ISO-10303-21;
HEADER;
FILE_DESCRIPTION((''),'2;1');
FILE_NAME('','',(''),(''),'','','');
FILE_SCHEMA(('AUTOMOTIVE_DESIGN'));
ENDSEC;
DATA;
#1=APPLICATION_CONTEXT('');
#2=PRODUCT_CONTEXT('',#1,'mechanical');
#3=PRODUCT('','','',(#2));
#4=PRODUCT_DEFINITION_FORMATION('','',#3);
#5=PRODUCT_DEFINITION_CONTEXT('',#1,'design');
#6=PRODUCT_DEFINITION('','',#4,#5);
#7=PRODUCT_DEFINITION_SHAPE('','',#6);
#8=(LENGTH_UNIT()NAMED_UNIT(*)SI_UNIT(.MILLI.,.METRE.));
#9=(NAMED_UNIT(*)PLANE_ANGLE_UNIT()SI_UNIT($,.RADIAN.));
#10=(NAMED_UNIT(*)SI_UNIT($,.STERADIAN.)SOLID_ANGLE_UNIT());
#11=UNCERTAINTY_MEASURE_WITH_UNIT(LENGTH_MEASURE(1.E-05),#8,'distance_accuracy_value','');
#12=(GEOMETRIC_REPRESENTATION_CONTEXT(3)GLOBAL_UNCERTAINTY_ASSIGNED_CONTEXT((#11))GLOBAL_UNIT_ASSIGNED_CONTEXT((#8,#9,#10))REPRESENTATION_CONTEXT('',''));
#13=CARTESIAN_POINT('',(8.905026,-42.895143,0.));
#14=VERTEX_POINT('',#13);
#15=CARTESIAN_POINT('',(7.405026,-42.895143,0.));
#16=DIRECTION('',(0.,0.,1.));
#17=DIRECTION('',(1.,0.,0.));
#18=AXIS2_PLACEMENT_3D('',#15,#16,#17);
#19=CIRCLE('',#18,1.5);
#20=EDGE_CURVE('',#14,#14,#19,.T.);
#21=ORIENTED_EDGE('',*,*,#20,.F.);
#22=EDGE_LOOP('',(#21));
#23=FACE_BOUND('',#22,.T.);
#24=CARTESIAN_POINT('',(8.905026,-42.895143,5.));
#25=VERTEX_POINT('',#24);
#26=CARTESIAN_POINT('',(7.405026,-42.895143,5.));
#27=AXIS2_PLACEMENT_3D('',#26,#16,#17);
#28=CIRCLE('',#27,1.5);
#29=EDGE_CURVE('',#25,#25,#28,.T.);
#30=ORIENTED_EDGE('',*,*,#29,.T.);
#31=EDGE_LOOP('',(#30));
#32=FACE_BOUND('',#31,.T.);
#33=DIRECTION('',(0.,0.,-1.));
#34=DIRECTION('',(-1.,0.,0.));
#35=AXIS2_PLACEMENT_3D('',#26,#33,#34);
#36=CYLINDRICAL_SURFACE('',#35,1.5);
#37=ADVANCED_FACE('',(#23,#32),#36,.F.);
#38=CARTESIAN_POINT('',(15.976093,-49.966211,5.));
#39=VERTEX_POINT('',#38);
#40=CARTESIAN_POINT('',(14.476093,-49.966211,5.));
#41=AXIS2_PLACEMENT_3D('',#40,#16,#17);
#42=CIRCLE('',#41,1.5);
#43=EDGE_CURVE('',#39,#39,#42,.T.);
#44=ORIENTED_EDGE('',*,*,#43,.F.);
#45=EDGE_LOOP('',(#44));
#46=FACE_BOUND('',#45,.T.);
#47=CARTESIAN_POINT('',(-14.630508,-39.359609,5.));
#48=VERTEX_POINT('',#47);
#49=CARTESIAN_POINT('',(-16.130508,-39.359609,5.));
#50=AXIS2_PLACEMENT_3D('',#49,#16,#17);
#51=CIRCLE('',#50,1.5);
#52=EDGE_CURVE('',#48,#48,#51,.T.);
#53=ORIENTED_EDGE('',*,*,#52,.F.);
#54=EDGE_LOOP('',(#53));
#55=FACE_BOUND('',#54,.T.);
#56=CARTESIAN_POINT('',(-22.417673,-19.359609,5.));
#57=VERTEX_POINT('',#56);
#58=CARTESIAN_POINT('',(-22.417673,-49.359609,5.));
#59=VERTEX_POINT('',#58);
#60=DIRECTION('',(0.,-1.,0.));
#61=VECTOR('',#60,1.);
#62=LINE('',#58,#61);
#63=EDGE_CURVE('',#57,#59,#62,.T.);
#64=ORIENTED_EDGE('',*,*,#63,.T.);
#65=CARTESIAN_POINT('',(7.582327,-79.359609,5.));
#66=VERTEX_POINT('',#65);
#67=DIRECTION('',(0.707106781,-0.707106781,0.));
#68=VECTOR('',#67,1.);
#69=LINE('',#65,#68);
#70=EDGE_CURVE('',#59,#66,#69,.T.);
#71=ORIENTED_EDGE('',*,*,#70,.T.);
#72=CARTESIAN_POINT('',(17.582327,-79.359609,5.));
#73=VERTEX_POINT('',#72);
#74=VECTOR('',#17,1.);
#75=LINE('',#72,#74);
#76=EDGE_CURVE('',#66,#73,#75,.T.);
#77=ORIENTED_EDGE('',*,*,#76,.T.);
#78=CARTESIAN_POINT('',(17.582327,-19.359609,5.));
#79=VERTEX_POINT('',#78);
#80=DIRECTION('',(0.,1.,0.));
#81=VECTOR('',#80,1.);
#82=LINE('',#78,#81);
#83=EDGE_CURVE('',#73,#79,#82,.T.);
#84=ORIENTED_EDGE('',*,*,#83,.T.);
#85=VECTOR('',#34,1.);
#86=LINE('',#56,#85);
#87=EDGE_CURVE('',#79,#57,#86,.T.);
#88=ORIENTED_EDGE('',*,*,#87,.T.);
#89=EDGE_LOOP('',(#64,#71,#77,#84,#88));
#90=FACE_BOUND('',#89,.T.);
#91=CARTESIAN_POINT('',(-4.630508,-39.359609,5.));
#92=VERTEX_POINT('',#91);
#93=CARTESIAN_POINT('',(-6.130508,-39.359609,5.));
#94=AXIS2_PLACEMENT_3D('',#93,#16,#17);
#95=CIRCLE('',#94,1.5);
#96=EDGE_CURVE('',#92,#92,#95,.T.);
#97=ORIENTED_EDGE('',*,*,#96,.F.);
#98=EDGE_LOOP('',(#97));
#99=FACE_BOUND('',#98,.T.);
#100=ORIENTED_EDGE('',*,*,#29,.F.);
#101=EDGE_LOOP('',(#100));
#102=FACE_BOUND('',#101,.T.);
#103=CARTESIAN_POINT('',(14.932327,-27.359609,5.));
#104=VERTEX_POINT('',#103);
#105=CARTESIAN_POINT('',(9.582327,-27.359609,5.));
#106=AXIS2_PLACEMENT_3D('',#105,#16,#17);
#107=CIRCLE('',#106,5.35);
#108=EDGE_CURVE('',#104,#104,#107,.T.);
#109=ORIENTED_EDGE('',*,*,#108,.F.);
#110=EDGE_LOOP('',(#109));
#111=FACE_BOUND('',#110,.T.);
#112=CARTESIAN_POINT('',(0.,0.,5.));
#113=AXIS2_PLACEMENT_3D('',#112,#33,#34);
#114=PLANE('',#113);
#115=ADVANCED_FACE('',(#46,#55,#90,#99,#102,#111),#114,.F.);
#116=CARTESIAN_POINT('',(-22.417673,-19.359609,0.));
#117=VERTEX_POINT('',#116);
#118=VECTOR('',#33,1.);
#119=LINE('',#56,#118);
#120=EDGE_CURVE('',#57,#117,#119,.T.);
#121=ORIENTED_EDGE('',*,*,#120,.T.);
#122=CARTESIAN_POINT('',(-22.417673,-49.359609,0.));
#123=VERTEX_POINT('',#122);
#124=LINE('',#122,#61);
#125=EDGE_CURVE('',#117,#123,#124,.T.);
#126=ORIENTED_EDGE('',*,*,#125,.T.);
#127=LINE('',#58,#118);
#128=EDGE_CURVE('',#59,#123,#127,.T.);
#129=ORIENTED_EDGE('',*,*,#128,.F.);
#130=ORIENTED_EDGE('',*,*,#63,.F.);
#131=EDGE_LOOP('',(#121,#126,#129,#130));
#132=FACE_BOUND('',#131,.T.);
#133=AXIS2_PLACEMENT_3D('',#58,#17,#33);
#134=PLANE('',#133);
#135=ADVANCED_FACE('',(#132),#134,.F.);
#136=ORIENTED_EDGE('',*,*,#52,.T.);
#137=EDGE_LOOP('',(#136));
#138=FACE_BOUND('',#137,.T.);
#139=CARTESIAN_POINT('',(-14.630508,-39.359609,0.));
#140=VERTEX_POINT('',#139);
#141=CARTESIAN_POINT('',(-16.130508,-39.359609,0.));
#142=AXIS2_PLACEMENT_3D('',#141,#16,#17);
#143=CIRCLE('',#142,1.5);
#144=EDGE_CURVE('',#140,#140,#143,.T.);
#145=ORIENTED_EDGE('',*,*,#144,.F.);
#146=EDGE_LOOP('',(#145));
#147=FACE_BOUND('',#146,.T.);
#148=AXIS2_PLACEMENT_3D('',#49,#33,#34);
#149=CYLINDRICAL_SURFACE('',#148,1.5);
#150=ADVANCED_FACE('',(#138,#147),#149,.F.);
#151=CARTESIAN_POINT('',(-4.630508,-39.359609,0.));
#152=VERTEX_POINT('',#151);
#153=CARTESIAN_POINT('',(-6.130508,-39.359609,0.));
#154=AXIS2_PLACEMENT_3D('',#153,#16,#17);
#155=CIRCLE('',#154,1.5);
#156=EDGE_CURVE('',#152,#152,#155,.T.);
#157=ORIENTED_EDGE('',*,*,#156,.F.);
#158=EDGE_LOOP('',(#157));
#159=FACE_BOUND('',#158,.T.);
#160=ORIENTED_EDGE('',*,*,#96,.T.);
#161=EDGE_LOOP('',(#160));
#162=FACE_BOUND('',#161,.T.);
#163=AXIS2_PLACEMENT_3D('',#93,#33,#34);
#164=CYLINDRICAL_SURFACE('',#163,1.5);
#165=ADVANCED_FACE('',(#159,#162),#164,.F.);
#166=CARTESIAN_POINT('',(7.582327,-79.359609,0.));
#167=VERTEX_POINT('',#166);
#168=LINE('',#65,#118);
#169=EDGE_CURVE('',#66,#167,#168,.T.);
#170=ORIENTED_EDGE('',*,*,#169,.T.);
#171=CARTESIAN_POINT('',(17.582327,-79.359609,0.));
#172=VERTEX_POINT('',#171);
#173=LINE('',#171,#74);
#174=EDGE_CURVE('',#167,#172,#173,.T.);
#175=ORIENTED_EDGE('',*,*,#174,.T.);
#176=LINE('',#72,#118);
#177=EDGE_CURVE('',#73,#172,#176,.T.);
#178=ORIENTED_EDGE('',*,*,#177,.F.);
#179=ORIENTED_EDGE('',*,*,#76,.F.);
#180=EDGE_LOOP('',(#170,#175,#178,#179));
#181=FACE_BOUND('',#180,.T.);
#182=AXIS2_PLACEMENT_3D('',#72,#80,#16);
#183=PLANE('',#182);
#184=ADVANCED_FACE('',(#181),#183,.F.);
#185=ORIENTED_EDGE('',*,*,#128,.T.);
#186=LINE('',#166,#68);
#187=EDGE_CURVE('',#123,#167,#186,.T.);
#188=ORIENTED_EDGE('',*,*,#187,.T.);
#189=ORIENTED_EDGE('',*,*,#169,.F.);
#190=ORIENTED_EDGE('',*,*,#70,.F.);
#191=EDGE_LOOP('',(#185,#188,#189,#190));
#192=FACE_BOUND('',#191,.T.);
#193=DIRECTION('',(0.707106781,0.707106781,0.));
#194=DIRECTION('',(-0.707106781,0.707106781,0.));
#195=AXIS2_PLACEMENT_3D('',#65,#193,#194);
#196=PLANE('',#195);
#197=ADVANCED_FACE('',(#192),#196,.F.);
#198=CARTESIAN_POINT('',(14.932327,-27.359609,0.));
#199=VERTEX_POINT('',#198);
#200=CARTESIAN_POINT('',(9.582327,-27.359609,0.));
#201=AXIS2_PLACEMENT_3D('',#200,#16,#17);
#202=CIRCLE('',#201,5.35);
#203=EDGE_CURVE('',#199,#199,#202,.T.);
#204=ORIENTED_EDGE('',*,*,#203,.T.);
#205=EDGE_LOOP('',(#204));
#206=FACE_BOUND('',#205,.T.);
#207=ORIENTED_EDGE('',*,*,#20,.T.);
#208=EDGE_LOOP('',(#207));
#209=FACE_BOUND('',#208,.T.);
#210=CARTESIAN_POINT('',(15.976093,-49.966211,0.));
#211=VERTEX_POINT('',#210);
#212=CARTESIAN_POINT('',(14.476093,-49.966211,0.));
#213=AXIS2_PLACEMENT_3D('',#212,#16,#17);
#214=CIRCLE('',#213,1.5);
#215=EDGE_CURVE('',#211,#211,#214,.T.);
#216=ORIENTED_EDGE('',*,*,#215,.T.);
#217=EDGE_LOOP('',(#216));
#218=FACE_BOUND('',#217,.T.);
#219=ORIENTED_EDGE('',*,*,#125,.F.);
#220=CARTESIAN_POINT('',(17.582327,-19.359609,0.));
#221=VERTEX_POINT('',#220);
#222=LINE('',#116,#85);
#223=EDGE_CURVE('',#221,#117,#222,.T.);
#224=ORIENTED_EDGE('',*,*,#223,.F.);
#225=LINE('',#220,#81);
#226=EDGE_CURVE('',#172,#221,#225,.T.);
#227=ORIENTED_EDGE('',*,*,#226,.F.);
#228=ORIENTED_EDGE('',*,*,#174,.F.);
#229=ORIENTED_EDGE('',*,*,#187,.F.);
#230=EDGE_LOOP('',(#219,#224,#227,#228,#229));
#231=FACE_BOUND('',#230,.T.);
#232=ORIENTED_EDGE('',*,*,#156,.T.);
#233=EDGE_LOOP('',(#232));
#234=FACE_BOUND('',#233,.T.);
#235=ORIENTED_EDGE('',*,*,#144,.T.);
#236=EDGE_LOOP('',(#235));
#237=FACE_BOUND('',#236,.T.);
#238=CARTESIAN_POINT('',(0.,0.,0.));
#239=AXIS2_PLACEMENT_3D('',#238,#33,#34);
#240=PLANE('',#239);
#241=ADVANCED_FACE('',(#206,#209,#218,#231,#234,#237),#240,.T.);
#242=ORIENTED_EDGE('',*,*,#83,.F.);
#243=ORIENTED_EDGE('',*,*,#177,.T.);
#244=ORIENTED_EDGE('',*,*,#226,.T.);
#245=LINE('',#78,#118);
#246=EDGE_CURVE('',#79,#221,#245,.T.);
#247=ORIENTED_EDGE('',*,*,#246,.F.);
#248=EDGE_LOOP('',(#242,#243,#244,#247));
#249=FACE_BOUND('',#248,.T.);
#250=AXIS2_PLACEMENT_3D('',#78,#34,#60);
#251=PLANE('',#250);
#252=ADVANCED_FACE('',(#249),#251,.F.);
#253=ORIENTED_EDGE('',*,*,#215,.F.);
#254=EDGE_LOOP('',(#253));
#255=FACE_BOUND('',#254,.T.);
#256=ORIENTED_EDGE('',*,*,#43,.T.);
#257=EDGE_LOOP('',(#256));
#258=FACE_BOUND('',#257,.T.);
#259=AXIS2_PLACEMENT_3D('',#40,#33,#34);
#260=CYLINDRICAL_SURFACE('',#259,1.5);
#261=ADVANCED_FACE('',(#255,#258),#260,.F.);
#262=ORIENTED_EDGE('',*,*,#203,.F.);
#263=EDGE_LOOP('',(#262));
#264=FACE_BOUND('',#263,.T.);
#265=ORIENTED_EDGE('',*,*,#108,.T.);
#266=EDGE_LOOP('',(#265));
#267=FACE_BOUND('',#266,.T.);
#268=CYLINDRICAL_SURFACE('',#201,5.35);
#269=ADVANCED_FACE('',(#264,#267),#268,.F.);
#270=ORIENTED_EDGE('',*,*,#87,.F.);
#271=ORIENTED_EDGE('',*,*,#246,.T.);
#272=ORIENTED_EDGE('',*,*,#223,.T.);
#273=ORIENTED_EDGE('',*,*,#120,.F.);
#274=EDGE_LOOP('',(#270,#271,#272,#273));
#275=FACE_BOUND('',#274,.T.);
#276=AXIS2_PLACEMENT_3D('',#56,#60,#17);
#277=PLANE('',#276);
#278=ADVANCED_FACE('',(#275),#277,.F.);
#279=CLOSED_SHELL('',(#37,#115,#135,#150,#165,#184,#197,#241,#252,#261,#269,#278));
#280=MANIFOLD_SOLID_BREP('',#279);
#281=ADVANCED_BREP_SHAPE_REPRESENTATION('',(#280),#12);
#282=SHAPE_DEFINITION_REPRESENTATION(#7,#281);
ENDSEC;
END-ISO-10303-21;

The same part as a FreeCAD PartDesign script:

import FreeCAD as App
import Part
import Sketcher
from FreeCAD import Vector

doc = App.newDocument("Part")
body = doc.addObject("PartDesign::Body", "Body")

sketch1 = doc.addObject("Sketcher::SketchObject", "Sketch")
body.addObject(sketch1)
sketch1.AttachmentSupport = (doc.XY_Plane, [""])
sketch1.MapMode = "FlatFace"
sketch1.addGeometry([
    Part.LineSegment(Vector(-22.417673, -19.359609, 0), Vector(-22.417673, -49.359609, 0)),
    Part.LineSegment(Vector(-22.417673, -49.359609, 0), Vector(7.582327, -79.359609, 0)),
    Part.LineSegment(Vector(7.582327, -79.359609, 0), Vector(17.582327, -79.359609, 0)),
    Part.LineSegment(Vector(17.582327, -79.359609, 0), Vector(17.582327, -19.359609, 0)),
    Part.LineSegment(Vector(17.582327, -19.359609, 0), Vector(-22.417673, -19.359609, 0)),
    Part.Circle(Vector(14.476093, -49.966211, 0), Vector(0, 0, 1), 1.5),
    Part.Circle(Vector(7.405026, -42.895143, 0), Vector(0, 0, 1), 1.5),
    Part.Circle(Vector(-6.130508, -39.359609, 0), Vector(0, 0, 1), 1.5),
    Part.Circle(Vector(-16.130508, -39.359609, 0), Vector(0, 0, 1), 1.5),
    Part.Circle(Vector(9.582327, -27.359609, 0), Vector(0, 0, 1), 4),
], False)
sketch1.addConstraint([
    Sketcher.Constraint("Coincident", 0, 2, 1, 1),
    Sketcher.Constraint("Coincident", 1, 2, 2, 1),
    Sketcher.Constraint("Coincident", 2, 2, 3, 1),
    Sketcher.Constraint("Coincident", 3, 2, 4, 1),
    Sketcher.Constraint("Coincident", 4, 2, 0, 1),
    Sketcher.Constraint("Vertical", 0),
    Sketcher.Constraint("Horizontal", 2),
    Sketcher.Constraint("Vertical", 3),
    Sketcher.Constraint("Horizontal", 4),
    Sketcher.Constraint("Equal", 5, 6),
    Sketcher.Constraint("Equal", 6, 7),
    Sketcher.Constraint("Equal", 7, 8),
    Sketcher.Constraint("Horizontal", 7, 3, 8, 3),
    Sketcher.Constraint("Diameter", 5, 3.0),
    Sketcher.Constraint("Diameter", 9, 8.0),
    Sketcher.Constraint("DistanceX", 2, 1, 2, 2, 10.0),
    Sketcher.Constraint("DistanceX", 4, 2, 4, 1, 40.0),
    Sketcher.Constraint("DistanceY", 0, 2, 0, 1, 30.0),
    Sketcher.Constraint("DistanceY", 3, 1, 3, 2, 60.0),
    Sketcher.Constraint("DistanceX", 8, 3, 7, 3, 10.0),
    Sketcher.Constraint("DistanceY", 7, 3, 9, 3, 12.0),
    Sketcher.Constraint("DistanceY", 0, 2, 8, 3, 10.0),
    Sketcher.Constraint("DistanceX", 0, 2, 9, 3, 32.0),
    Sketcher.Constraint("DistanceX", 7, 3, 5, 3, 20.606602),
    Sketcher.Constraint("DistanceY", 5, 3, 7, 3, 10.606602),
    Sketcher.Constraint("DistanceX", 6, 3, 9, 3, 2.177301),
    Sketcher.Constraint("DistanceY", 5, 3, -1, 1, 49.966211),
    Sketcher.Constraint("DistanceX", 7, 3, -1, 1, 6.130508),
    Sketcher.Constraint("DistanceX", -1, 1, 6, 3, 7.405026),
    Sketcher.Constraint("DistanceY", 6, 3, -1, 1, 42.895143),
])
pad1 = doc.addObject("PartDesign::Pad", "Pad")
body.addObject(pad1)
pad1.Profile = sketch1
pad1.Length = 5

sketch2 = doc.addObject("Sketcher::SketchObject", "Sketch001")
body.addObject(sketch2)
sketch2.AttachmentSupport = (doc.XY_Plane, [""])
sketch2.MapMode = "FlatFace"
sketch2.AttachmentOffset = App.Placement(Vector(0, 0, 5), App.Rotation())
sketch2.addGeometry(Part.Circle(Vector(9.582327, -27.359609, 0), Vector(0, 0, 1), 5.35), False)
sketch2.addConstraint([
    Sketcher.Constraint("Diameter", 0, 10.7),
    Sketcher.Constraint("DistanceY", 0, 3, -1, 1, 27.359609),
    Sketcher.Constraint("DistanceX", -1, 1, 0, 3, 9.582327),
])
pocket1 = doc.addObject("PartDesign::Pocket", "Pocket")
body.addObject(pocket1)
pocket1.Profile = sketch2
pocket1.Length = 5

doc.recompute()
